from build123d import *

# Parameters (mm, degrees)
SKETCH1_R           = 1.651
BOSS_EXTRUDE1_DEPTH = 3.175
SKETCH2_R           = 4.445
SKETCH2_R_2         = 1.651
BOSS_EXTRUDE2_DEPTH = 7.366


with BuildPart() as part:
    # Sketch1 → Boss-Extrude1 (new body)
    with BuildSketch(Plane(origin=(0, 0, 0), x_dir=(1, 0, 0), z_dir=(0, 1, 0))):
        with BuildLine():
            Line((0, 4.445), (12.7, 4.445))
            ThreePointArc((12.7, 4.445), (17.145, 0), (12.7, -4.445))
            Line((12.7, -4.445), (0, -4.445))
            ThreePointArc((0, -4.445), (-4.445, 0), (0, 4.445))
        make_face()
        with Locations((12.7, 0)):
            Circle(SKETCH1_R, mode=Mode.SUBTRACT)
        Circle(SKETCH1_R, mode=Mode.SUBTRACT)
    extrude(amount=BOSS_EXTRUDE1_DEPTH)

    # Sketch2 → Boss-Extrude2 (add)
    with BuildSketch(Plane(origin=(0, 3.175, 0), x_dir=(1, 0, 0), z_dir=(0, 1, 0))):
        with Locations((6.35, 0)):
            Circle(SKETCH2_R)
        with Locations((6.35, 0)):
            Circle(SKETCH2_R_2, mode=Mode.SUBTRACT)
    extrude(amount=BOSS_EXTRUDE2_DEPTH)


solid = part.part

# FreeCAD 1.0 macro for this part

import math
import FreeCAD as App
import Part
import Sketcher

V = App.Vector
Q = App.Units.Quantity

doc = App.newDocument("Part")
body = doc.addObject("PartDesign::Body", "Body")

sketch1 = body.newObject("Sketcher::SketchObject", "Sketch")
sketch1.AttachmentSupport = (doc.getObject("XZ_Plane"), [""])
sketch1.MapMode = "FlatFace"
sketch1.addGeometry(Part.LineSegment(V(12.7, -4.4, 0), V(0, -4.4, 0)), False)
sketch1.addGeometry(Part.ArcOfCircle(Part.Circle(V(0, 0, 0), V(0, 0, 1), 4.4), math.radians(90), math.radians(270)), False)
sketch1.addGeometry(Part.LineSegment(V(0, 4.4, 0), V(12.7, 4.4, 0)), False)
sketch1.addGeometry(Part.ArcOfCircle(Part.Circle(V(12.7, 0, 0), V(0, 0, 1), 4.4), math.radians(-90), math.radians(90)), False)
sketch1.addGeometry(Part.Circle(V(12.7, 0, 0), V(0, 0, 1), 1.7), False)
sketch1.addGeometry(Part.Circle(V(0, 0, 0), V(0, 0, 1), 1.7), False)
sketch1.addConstraint(Sketcher.Constraint("Tangent", 0, 2, 1, 2))
sketch1.addConstraint(Sketcher.Constraint("Tangent", 1, 1, 2, 1))
sketch1.addConstraint(Sketcher.Constraint("Tangent", 2, 2, 3, 2))
sketch1.addConstraint(Sketcher.Constraint("Tangent", 3, 1, 0, 1))
sketch1.addConstraint(Sketcher.Constraint("Horizontal", 0))
sketch1.addConstraint(Sketcher.Constraint("Horizontal", 2))
sketch1.addConstraint(Sketcher.Constraint("Coincident", 1, 3, -1, 1))
sketch1.addConstraint(Sketcher.Constraint("Coincident", 5, 3, -1, 1))
sketch1.addConstraint(Sketcher.Constraint("Coincident", 4, 3, 3, 3))
sketch1.addConstraint(Sketcher.Constraint("Equal", 4, 5))
sketch1.addConstraint(Sketcher.Constraint("Diameter", 4, Q("0.13 in")))
sketch1.addConstraint(Sketcher.Constraint("DistanceX", 0, 2, 0, 1, Q("0.5 in")))
sketch1.addConstraint(Sketcher.Constraint("Radius", 1, Q("0.175 in")))
pad1 = body.newObject("PartDesign::Pad", "Pad")
pad1.Profile = sketch1
pad1.Length = Q("0.125 in")
pad1.Reversed = True

sketch2 = body.newObject("Sketcher::SketchObject", "Sketch001")
sketch2.AttachmentSupport = (doc.getObject("XZ_Plane"), [""])
sketch2.MapMode = "FlatFace"
sketch2.AttachmentOffset = App.Placement(V(0, 0, -0.125 * 25.4), App.Rotation())
sketch2.addGeometry(Part.Circle(V(6.3, 0, 0), V(0, 0, 1), 4.4), False)
sketch2.addGeometry(Part.Circle(V(6.3, 0, 0), V(0, 0, 1), 1.7), False)
sketch2.addConstraint(Sketcher.Constraint("Coincident", 1, 3, 0, 3))
sketch2.addConstraint(Sketcher.Constraint("PointOnObject", 0, 3, -1))
sketch2.addConstraint(Sketcher.Constraint("Diameter", 0, Q("0.35 in")))
sketch2.addConstraint(Sketcher.Constraint("Diameter", 1, Q("0.13 in")))
sketch2.addConstraint(Sketcher.Constraint("DistanceX", -1, 1, 0, 3, Q("0.25 in")))
pad2 = body.newObject("PartDesign::Pad", "Pad001")
pad2.Profile = sketch2
pad2.Length = Q("0.29 in")
pad2.Reversed = True

doc.recompute()
